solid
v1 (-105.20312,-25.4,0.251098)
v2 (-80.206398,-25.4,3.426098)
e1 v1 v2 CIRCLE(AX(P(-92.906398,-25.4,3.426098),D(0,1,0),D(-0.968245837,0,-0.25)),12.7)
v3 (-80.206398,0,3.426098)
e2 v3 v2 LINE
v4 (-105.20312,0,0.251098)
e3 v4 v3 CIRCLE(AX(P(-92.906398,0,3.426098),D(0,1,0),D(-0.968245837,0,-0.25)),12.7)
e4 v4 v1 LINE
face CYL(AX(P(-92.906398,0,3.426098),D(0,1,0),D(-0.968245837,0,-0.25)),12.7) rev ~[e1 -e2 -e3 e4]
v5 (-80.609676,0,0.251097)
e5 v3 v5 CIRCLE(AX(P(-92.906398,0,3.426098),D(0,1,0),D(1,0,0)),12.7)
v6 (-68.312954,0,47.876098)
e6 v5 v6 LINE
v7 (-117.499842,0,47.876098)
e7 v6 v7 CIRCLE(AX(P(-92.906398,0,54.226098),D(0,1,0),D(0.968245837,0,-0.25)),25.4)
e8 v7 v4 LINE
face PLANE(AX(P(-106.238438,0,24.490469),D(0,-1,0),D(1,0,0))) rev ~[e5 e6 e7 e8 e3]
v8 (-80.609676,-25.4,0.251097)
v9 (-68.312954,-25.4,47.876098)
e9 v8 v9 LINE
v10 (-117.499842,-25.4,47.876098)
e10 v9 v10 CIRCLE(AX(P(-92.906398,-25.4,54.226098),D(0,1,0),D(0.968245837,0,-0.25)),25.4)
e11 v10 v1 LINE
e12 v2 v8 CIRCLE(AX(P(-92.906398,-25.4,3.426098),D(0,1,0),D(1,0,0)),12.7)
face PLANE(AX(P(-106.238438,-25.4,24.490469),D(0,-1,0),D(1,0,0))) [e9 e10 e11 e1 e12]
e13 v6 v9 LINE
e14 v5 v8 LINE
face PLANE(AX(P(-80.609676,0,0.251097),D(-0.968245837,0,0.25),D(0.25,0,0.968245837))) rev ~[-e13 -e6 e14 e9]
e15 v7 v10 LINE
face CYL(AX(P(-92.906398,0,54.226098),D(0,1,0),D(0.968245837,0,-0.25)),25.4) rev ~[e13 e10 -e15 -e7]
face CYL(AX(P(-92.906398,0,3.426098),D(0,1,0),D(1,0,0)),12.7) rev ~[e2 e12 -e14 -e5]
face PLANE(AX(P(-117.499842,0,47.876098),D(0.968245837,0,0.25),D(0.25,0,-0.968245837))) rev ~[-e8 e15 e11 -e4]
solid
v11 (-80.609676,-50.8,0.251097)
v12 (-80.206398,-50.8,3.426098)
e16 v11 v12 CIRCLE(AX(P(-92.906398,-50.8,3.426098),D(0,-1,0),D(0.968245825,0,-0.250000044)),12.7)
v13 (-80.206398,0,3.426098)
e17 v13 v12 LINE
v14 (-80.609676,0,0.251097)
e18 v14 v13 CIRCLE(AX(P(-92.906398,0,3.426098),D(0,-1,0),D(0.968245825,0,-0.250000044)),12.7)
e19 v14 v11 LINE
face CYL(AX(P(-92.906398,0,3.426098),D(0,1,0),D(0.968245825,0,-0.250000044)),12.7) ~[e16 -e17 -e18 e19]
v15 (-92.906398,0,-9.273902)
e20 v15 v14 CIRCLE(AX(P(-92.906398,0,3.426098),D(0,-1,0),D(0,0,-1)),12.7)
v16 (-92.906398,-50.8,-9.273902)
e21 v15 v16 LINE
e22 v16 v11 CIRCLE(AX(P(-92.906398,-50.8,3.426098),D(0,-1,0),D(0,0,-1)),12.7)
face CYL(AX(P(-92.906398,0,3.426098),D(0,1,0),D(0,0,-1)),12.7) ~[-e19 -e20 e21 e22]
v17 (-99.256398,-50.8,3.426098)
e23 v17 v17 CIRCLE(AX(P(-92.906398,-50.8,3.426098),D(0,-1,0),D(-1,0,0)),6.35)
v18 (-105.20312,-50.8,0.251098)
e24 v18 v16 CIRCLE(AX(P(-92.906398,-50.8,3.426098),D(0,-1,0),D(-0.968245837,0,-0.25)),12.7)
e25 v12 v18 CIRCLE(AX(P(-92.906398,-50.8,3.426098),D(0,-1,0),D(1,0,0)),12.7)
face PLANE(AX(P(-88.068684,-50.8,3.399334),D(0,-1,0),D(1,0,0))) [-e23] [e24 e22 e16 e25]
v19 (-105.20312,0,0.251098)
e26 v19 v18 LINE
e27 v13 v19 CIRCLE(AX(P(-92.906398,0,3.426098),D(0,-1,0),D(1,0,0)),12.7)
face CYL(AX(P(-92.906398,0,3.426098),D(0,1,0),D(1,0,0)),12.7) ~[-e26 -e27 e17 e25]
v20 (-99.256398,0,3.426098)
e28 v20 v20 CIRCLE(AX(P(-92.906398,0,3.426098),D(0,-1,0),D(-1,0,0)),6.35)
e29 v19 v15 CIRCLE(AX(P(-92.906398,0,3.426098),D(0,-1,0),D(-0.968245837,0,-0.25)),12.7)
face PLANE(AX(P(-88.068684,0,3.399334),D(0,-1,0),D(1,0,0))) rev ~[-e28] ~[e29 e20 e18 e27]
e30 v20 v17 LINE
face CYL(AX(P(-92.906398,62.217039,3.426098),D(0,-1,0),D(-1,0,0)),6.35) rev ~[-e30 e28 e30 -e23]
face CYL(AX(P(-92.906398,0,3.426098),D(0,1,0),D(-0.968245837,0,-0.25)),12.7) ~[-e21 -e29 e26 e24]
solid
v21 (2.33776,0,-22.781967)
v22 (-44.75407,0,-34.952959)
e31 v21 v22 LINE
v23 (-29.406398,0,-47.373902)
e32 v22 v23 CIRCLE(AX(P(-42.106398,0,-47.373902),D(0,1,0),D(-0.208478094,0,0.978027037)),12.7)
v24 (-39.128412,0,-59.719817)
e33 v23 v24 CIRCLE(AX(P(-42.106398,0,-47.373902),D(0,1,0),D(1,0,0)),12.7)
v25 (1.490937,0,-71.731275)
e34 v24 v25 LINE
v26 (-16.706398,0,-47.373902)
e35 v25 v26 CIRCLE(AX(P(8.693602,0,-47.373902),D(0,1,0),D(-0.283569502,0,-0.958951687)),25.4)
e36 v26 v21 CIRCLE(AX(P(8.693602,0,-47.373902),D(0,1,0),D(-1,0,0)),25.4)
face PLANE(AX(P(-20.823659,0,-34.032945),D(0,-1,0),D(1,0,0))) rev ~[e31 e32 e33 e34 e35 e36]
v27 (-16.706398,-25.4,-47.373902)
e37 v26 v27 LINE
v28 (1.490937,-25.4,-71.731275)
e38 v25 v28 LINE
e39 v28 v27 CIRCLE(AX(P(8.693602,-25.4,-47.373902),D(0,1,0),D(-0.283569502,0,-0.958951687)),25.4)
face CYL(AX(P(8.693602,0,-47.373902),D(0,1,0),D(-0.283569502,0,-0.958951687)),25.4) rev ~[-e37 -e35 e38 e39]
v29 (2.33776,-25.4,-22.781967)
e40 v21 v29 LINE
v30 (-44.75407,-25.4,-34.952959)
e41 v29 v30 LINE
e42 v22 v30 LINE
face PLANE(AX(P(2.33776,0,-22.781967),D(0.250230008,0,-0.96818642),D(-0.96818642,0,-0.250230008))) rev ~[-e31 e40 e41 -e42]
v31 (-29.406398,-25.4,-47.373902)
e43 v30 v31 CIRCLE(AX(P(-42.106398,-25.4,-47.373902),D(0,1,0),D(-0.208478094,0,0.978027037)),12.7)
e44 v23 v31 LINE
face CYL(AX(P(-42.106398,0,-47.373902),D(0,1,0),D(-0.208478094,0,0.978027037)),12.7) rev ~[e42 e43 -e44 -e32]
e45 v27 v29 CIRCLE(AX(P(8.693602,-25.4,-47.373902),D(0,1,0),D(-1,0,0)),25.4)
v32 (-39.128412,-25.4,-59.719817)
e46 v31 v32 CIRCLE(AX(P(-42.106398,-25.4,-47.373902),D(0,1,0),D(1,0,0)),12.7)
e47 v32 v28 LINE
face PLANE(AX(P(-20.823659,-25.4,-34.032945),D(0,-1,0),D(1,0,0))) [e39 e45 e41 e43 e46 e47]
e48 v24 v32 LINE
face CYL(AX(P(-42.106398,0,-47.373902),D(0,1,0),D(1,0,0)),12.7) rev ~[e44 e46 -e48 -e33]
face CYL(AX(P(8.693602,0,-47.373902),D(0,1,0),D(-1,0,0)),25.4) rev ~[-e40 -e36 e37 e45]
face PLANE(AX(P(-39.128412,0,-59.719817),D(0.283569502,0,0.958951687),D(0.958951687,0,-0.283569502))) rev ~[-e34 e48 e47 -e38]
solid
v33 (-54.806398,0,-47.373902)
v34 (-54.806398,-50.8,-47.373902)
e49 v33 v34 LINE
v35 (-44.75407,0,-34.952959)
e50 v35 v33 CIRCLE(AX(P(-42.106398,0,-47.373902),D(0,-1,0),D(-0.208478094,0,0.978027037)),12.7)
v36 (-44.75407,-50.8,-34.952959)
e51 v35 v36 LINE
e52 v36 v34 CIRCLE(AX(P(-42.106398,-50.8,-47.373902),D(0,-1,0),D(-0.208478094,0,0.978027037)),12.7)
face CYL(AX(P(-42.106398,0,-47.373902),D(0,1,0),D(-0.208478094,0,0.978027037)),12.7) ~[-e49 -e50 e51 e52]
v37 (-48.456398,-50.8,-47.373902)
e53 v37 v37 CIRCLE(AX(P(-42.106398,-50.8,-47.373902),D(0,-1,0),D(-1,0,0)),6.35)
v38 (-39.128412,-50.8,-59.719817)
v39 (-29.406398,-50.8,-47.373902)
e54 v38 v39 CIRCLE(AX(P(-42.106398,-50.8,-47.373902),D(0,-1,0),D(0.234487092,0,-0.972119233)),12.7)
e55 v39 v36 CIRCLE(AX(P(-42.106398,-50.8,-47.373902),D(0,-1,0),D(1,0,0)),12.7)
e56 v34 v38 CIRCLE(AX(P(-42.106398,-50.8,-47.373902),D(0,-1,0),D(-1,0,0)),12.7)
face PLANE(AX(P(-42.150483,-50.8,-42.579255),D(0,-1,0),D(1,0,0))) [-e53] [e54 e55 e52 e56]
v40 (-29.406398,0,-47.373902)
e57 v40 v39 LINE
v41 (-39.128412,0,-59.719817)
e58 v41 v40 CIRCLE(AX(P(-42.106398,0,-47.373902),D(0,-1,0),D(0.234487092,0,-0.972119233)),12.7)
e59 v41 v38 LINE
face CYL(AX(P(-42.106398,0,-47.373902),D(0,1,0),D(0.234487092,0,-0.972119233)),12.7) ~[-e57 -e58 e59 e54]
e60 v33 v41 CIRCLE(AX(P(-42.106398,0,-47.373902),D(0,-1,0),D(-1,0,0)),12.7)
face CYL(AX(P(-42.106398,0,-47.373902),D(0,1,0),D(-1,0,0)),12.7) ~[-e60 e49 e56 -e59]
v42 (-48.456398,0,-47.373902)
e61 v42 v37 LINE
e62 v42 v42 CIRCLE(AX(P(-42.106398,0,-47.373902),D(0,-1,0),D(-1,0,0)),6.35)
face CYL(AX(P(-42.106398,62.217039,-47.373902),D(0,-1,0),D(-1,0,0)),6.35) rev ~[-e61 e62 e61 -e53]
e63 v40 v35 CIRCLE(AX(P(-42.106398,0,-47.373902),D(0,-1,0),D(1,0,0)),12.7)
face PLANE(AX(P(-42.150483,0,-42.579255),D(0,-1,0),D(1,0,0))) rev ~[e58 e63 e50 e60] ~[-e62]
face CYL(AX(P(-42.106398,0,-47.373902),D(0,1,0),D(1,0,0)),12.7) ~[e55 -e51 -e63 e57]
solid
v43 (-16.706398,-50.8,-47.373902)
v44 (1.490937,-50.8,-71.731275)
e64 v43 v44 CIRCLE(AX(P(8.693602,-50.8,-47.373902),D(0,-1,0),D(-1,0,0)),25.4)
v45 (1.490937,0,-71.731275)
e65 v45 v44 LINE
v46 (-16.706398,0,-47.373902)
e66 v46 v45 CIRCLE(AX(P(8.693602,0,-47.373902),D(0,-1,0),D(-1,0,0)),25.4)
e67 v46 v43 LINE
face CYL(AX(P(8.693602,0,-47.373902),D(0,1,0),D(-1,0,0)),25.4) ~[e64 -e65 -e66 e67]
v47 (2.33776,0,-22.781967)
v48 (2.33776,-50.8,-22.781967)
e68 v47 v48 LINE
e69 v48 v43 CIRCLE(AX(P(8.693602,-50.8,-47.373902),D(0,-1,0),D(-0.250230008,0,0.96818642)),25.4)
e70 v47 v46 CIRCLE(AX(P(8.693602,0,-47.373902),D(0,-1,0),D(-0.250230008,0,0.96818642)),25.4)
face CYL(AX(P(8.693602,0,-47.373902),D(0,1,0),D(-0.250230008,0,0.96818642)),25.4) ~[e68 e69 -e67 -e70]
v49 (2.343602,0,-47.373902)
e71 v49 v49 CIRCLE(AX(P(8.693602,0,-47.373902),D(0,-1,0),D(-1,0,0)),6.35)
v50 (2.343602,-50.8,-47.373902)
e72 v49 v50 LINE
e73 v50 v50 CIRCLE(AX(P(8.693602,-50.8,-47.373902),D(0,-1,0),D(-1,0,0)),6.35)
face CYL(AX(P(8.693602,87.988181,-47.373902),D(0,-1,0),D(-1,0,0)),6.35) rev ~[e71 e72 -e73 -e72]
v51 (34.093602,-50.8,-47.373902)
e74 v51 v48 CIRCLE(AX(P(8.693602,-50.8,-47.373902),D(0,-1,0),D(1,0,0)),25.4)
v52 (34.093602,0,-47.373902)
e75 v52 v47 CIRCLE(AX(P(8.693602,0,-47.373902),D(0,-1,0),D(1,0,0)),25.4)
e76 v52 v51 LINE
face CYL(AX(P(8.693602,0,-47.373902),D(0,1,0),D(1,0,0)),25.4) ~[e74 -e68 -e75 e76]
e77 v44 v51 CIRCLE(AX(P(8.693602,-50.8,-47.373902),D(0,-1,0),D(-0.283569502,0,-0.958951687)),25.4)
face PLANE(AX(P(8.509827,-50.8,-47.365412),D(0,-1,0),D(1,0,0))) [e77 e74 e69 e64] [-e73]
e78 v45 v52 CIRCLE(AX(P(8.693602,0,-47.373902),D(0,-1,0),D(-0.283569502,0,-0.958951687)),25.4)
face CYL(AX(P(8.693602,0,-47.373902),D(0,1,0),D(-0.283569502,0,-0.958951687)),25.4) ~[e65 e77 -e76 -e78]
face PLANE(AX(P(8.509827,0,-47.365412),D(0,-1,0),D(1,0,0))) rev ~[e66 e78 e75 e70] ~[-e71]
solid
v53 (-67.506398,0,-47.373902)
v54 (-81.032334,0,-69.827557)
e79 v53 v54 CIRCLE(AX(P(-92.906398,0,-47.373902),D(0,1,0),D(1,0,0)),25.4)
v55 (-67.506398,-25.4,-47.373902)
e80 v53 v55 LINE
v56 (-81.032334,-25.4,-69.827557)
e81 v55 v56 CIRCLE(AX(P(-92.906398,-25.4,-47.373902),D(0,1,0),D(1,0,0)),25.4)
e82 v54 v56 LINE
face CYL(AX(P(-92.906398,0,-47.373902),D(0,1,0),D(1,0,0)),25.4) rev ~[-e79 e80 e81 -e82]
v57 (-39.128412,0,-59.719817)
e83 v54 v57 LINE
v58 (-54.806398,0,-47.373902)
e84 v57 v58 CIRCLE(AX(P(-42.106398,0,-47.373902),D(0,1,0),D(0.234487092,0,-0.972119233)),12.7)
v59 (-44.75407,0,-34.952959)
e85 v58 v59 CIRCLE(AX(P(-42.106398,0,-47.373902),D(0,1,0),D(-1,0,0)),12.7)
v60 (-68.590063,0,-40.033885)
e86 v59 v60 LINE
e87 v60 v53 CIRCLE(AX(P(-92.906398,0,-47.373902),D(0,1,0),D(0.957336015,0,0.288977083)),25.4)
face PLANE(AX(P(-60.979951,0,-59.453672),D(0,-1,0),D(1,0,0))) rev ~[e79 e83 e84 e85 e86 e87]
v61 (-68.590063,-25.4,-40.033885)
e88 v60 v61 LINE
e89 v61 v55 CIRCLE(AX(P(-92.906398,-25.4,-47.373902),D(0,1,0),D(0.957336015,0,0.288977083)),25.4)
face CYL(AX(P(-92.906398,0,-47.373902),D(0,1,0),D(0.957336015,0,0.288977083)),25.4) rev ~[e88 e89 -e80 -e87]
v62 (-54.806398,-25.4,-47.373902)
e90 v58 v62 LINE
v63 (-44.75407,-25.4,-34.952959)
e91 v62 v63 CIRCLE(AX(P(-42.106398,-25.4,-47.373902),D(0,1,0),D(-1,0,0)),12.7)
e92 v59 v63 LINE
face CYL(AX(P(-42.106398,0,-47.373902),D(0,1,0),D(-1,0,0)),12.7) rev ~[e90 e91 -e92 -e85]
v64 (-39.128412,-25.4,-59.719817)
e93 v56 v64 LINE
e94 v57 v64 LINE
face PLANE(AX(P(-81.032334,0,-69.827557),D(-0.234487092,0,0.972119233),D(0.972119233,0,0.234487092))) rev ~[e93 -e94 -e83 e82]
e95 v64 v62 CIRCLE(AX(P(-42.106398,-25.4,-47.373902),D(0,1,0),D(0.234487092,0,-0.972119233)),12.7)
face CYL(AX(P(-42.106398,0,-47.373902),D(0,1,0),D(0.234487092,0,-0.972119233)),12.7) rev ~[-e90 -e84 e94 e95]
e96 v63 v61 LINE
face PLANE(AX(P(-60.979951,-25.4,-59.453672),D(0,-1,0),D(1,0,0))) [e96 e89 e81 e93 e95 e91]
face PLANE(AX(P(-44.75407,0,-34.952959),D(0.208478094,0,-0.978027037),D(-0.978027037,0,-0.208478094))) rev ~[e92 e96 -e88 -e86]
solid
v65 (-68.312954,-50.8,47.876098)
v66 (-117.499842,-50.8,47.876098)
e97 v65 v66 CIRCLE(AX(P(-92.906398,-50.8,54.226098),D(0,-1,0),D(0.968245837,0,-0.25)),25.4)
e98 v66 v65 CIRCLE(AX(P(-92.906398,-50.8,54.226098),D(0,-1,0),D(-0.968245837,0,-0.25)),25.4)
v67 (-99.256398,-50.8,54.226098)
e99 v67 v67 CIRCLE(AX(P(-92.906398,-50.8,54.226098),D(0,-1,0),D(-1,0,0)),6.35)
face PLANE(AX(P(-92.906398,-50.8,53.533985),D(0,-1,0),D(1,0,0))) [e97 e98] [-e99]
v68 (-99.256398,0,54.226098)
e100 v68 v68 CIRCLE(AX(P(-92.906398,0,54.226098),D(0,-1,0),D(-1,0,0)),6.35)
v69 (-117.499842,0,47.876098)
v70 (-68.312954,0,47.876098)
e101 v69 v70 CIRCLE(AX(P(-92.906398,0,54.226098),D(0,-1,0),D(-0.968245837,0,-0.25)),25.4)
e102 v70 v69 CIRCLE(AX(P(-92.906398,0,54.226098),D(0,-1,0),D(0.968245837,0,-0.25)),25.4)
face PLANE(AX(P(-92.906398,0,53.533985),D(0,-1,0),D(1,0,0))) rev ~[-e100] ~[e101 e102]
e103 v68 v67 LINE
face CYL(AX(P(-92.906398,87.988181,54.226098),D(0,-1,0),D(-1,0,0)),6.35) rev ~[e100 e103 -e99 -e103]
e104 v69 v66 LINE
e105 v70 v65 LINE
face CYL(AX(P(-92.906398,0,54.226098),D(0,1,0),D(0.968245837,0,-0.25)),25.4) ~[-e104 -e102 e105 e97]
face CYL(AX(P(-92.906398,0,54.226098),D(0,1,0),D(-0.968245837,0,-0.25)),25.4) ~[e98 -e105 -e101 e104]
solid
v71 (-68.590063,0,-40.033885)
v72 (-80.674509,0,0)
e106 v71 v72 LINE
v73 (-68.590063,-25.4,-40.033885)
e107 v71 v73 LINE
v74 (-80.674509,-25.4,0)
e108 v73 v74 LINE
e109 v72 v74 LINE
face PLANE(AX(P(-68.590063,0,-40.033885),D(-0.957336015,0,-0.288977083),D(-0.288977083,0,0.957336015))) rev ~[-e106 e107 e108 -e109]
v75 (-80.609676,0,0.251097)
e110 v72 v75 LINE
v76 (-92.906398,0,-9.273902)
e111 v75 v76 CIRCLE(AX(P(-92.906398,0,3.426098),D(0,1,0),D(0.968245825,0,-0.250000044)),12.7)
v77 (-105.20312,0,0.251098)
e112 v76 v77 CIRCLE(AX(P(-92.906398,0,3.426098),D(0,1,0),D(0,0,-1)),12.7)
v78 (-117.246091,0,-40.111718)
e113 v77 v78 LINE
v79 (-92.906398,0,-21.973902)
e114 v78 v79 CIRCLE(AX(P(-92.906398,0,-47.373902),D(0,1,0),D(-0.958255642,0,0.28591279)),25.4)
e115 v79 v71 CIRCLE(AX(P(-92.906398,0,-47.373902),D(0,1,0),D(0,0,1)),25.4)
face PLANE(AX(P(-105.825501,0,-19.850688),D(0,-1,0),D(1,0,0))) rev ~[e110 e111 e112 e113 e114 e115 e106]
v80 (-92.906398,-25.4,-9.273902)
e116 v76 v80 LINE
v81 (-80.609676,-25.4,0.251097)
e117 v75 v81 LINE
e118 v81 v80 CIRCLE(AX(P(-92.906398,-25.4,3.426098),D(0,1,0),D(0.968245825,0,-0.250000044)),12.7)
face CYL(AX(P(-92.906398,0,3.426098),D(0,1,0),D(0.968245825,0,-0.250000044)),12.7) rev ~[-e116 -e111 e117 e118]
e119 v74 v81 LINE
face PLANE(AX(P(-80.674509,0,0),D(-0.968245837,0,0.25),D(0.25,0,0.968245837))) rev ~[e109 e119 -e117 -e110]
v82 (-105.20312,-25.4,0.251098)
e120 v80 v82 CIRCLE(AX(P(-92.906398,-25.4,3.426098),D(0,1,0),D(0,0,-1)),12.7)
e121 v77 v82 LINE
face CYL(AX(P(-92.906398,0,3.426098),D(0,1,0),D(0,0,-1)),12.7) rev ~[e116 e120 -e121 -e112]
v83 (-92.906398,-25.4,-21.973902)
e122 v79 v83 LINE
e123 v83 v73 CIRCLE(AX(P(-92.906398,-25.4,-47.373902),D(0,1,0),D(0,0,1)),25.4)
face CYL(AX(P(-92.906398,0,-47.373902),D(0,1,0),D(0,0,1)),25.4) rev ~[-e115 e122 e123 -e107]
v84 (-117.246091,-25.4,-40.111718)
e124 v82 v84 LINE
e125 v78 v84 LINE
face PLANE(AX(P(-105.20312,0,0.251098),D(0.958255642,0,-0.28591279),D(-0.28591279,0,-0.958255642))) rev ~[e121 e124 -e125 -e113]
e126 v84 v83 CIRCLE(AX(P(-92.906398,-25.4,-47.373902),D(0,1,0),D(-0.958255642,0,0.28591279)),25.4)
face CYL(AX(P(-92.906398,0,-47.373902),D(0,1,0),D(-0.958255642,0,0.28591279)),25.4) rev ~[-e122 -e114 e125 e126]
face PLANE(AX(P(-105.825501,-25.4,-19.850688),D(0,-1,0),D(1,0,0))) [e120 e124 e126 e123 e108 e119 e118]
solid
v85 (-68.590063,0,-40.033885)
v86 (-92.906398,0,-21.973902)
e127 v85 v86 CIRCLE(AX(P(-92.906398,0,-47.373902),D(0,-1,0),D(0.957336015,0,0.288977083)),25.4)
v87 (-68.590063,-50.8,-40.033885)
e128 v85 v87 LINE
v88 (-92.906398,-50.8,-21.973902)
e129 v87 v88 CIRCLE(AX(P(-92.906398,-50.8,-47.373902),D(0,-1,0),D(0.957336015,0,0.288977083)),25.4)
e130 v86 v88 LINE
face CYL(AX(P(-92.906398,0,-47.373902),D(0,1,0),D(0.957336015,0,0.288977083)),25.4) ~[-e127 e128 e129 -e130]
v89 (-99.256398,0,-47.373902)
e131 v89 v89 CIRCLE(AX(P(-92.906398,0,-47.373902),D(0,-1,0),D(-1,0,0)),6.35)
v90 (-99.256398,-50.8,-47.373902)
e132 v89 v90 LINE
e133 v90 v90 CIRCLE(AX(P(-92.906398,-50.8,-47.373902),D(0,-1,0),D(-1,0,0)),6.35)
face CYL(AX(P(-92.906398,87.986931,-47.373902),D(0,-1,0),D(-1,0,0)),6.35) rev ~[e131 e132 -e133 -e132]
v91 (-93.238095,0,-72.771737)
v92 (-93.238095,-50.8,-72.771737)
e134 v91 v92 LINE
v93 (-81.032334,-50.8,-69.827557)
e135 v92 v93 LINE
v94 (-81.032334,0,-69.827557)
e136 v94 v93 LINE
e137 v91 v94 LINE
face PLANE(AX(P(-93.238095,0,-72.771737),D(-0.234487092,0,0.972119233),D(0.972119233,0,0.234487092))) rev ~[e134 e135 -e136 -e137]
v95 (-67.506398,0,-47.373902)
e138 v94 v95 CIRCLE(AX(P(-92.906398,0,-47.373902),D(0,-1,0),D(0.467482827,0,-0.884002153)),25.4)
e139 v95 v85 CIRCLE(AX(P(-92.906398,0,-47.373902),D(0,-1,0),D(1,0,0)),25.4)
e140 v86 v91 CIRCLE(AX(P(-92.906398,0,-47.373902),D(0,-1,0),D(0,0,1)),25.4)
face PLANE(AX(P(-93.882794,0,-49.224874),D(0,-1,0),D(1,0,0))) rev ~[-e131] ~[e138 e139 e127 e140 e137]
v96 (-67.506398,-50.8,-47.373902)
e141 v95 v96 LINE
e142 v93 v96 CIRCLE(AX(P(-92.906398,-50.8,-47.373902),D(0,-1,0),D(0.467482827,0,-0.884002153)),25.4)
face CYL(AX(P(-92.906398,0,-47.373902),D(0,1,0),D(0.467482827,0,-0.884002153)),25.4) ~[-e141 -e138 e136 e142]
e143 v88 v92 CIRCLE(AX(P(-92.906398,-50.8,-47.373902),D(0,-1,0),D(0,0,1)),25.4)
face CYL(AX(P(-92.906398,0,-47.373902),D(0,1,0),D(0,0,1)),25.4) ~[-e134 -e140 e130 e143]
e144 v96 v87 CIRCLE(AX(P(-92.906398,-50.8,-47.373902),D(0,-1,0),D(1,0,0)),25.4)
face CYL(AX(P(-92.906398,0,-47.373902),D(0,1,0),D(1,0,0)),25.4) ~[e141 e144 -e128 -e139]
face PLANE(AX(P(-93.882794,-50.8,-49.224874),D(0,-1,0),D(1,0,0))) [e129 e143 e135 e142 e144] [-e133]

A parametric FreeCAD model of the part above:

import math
import FreeCAD as App
import Part
import Sketcher
from FreeCAD import Vector
Q = App.Units.Quantity

doc = App.newDocument("Part")
body = doc.addObject("PartDesign::Body", "Body")

sketch1 = body.newObject("Sketcher::SketchObject", "Sketch")
sketch1.AttachmentSupport = (doc.getObject("XZ_Plane"), [""])
sketch1.MapMode = "FlatFace"
sketch1.addGeometry([
    Part.ArcOfCircle(Part.Circle(Vector(-92.906398, 54.226098, 0), Vector(0, 0, 1), 25.4), math.radians(-14.477512), math.radians(194.477512)),
    Part.ArcOfCircle(Part.Circle(Vector(-92.906398, 54.226098, 0), Vector(0, 0, 1), 25.4), math.radians(-165.522488), math.radians(-14.477512)),
], False)
sketch1.addConstraint([
    Sketcher.Constraint("Tangent", 0, 1, 1, 2),
    Sketcher.Constraint("Coincident", 1, 1, 0, 2),
    Sketcher.Constraint("Horizontal", 0, 1, 1, 1),
    Sketcher.Constraint("Radius", 0, Q("1 in")),
    Sketcher.Constraint("DistanceY", 0, 1, 1, 3, Q("0.25 in")),
    Sketcher.Constraint("DistanceX", 0, 3, -1, 1, Q("92.906398 mm")),
    Sketcher.Constraint("DistanceY", -1, 1, 0, 3, Q("54.226098 mm")),
])
pad1 = body.newObject("PartDesign::Pad", "Pad")
pad1.Profile = sketch1
pad1.Length = Q("2 in")

sketch2 = body.newObject("Sketcher::SketchObject", "Sketch001")
sketch2.AttachmentSupport = (doc.getObject("XZ_Plane"), [""])
sketch2.MapMode = "FlatFace"
sketch2.addGeometry([
    Part.Circle(Vector(-92.906398, -47.373902, 0), Vector(0, 0, 1), 6.35),
    Part.Circle(Vector(-92.906398, 3.426098, 0), Vector(0, 0, 1), 6.35),
    Part.Circle(Vector(-92.906398, 54.226098, 0), Vector(0, 0, 1), 6.35),
    Part.Circle(Vector(-42.106398, -47.373902, 0), Vector(0, 0, 1), 6.35),
    Part.Circle(Vector(8.693602, -47.373902, 0), Vector(0, 0, 1), 6.35),
], False)
sketch2.addConstraint([
    Sketcher.Constraint("Equal", 0, 1),
    Sketcher.Constraint("Equal", 1, 2),
    Sketcher.Constraint("Equal", 2, 3),
    Sketcher.Constraint("Equal", 3, 4),
    Sketcher.Constraint("Horizontal", 0, 3, 3, 3),
    Sketcher.Constraint("Horizontal", 3, 3, 4, 3),
    Sketcher.Constraint("Vertical", 0, 3, 1, 3),
    Sketcher.Constraint("Vertical", 1, 3, 2, 3),
    Sketcher.Constraint("Diameter", 0, Q("0.5 in")),
    Sketcher.Constraint("DistanceY", 0, 3, 1, 3, Q("2 in")),
    Sketcher.Constraint("DistanceY", 1, 3, 2, 3, Q("2 in")),
    Sketcher.Constraint("DistanceX", 0, 3, 3, 3, Q("2 in")),
    Sketcher.Constraint("DistanceX", 3, 3, 4, 3, Q("2 in")),
    Sketcher.Constraint("DistanceX", 0, 3, -1, 1, Q("92.906398 mm")),
    Sketcher.Constraint("DistanceY", 0, 3, -1, 1, Q("47.373902 mm")),
])
doc.recompute()
hole = body.newObject("PartDesign::Hole", "Hole")
hole.Profile = sketch2
hole.ThreadType = "None"
hole.Diameter = Q("0.5 in")
hole.DepthType = "ThroughAll"
hole.Reversed = True
body2 = doc.addObject("PartDesign::Body", "Body001")

sketch3 = body2.newObject("Sketcher::SketchObject", "Sketch002")
sketch3.AttachmentSupport = (doc.getObject("XZ_Plane001"), [""])
sketch3.MapMode = "FlatFace"
sketch3.addGeometry([
    Part.ArcOfCircle(Part.Circle(Vector(-92.906398, 3.426098, 0), Vector(0, 0, 1), 12.7), math.radians(-90), math.radians(-14.477515)),
    Part.ArcOfCircle(Part.Circle(Vector(-92.906398, 3.426098, 0), Vector(0, 0, 1), 12.7), math.radians(-14.477515), math.radians(0)),
    Part.ArcOfCircle(Part.Circle(Vector(-92.906398, 3.426098, 0), Vector(0, 0, 1), 12.7), math.radians(0), math.radians(194.477512)),
    Part.ArcOfCircle(Part.Circle(Vector(-92.906398, 3.426098, 0), Vector(0, 0, 1), 12.7), math.radians(-165.522488), math.radians(-90)),
], False)
sketch3.addConstraint([
    Sketcher.Constraint("Tangent", 0, 2, 1, 1),
    Sketcher.Constraint("Tangent", 1, 2, 2, 1),
    Sketcher.Constraint("Tangent", 2, 2, 3, 1),
    Sketcher.Constraint("Tangent", 3, 2, 0, 1),
    Sketcher.Constraint("Equal", 0, 1),
    Sketcher.Constraint("Horizontal", 3, 3, 1, 2),
    Sketcher.Constraint("Horizontal", 0, 2, 2, 2),
    Sketcher.Constraint("Vertical", 2, 3, 3, 2),
    Sketcher.Constraint("Radius", 0, Q("0.5 in")),
    Sketcher.Constraint("DistanceY", 0, 2, 0, 3, Q("0.125 in")),
    Sketcher.Constraint("DistanceX", 2, 2, -1, 1, Q("105.20312 mm")),
    Sketcher.Constraint("DistanceY", -1, 1, 0, 3, Q("3.426098 mm")),
])
pad2 = body2.newObject("PartDesign::Pad", "Pad001")
pad2.Profile = sketch3
pad2.Length = Q("2 in")

sketch4 = body2.newObject("Sketcher::SketchObject", "Sketch003")
sketch4.AttachmentSupport = (doc.getObject("XZ_Plane001"), [""])
sketch4.MapMode = "FlatFace"
sketch4.addGeometry([
    Part.Circle(Vector(-92.906398, -47.373902, 0), Vector(0, 0, 1), 6.35),
    Part.Circle(Vector(-92.906398, 3.426098, 0), Vector(0, 0, 1), 6.35),
    Part.Circle(Vector(-92.906398, 54.226098, 0), Vector(0, 0, 1), 6.35),
    Part.Circle(Vector(-42.106398, -47.373902, 0), Vector(0, 0, 1), 6.35),
    Part.Circle(Vector(8.693602, -47.373902, 0), Vector(0, 0, 1), 6.35),
], False)
sketch4.addConstraint([
    Sketcher.Constraint("Equal", 0, 1),
    Sketcher.Constraint("Equal", 1, 2),
    Sketcher.Constraint("Equal", 2, 3),
    Sketcher.Constraint("Equal", 3, 4),
    Sketcher.Constraint("Horizontal", 0, 3, 3, 3),
    Sketcher.Constraint("Horizontal", 3, 3, 4, 3),
    Sketcher.Constraint("Vertical", 0, 3, 1, 3),
    Sketcher.Constraint("Vertical", 1, 3, 2, 3),
    Sketcher.Constraint("Diameter", 0, Q("0.5 in")),
    Sketcher.Constraint("DistanceY", 0, 3, 1, 3, Q("2 in")),
    Sketcher.Constraint("DistanceY", 1, 3, 2, 3, Q("2 in")),
    Sketcher.Constraint("DistanceX", 0, 3, 3, 3, Q("2 in")),
    Sketcher.Constraint("DistanceX", 3, 3, 4, 3, Q("2 in")),
    Sketcher.Constraint("DistanceX", 0, 3, -1, 1, Q("92.906398 mm")),
    Sketcher.Constraint("DistanceY", 0, 3, -1, 1, Q("47.373902 mm")),
])
doc.recompute()
hole2 = body2.newObject("PartDesign::Hole", "Hole001")
hole2.Profile = sketch4
hole2.ThreadType = "None"
hole2.Diameter = Q("0.5 in")
hole2.DepthType = "ThroughAll"
hole2.Reversed = True
body3 = doc.addObject("PartDesign::Body", "Body002")

sketch5 = body3.newObject("Sketcher::SketchObject", "Sketch004")
sketch5.AttachmentSupport = (doc.getObject("XZ_Plane002"), [""])
sketch5.MapMode = "FlatFace"
sketch5.addGeometry([
    Part.ArcOfCircle(Part.Circle(Vector(-92.906398, -47.373902, 0), Vector(0, 0, 1), 25.4), math.radians(-62.128975), math.radians(0)),
    Part.ArcOfCircle(Part.Circle(Vector(-92.906398, -47.373902, 0), Vector(0, 0, 1), 25.4), math.radians(0), math.radians(16.796725)),
    Part.ArcOfCircle(Part.Circle(Vector(-92.906398, -47.373902, 0), Vector(0, 0, 1), 25.4), math.radians(16.796725), math.radians(90)),
    Part.ArcOfCircle(Part.Circle(Vector(-92.906398, -47.373902, 0), Vector(0, 0, 1), 25.4), math.radians(90), math.radians(269.251756)),
    Part.LineSegment(Vector(-93.238095, -72.771737, 0), Vector(-81.032334, -69.827557, 0)),
], False)
sketch5.addConstraint([
    Sketcher.Constraint("Tangent", 0, 2, 1, 1),
    Sketcher.Constraint("Tangent", 1, 2, 2, 1),
    Sketcher.Constraint("Tangent", 2, 2, 3, 1),
    Sketcher.Constraint("Coincident", 3, 2, 4, 1),
    Sketcher.Constraint("Coincident", 4, 2, 0, 1),
    Sketcher.Constraint("Coincident", 2, 3, 0, 3),
    Sketcher.Constraint("Equal", 2, 3),
    Sketcher.Constraint("Horizontal", 3, 3, 0, 2),
    Sketcher.Constraint("Vertical", 3, 3, 2, 2),
    Sketcher.Constraint("Radius", 0, Q("1 in")),
    Sketcher.Constraint("DistanceX", 3, 2, 4, 2, Q("12.205761 mm")),
    Sketcher.Constraint("DistanceY", 3, 2, 4, 2, Q("2.944179 mm")),
    Sketcher.Constraint("DistanceX", 0, 3, -1, 1, Q("92.906398 mm")),
    Sketcher.Constraint("DistanceY", 0, 3, -1, 1, Q("47.373902 mm")),
    Sketcher.Constraint("DistanceX", 1, 2, -1, 1, Q("68.590063 mm")),
])
pad3 = body3.newObject("PartDesign::Pad", "Pad002")
pad3.Profile = sketch5
pad3.Length = Q("2 in")

sketch6 = body3.newObject("Sketcher::SketchObject", "Sketch005")
sketch6.AttachmentSupport = (doc.getObject("XZ_Plane002"), [""])
sketch6.MapMode = "FlatFace"
sketch6.addGeometry([
    Part.Circle(Vector(-92.906398, -47.373902, 0), Vector(0, 0, 1), 6.35),
    Part.Circle(Vector(-92.906398, 3.426098, 0), Vector(0, 0, 1), 6.35),
    Part.Circle(Vector(-92.906398, 54.226098, 0), Vector(0, 0, 1), 6.35),
    Part.Circle(Vector(-42.106398, -47.373902, 0), Vector(0, 0, 1), 6.35),
    Part.Circle(Vector(8.693602, -47.373902, 0), Vector(0, 0, 1), 6.35),
], False)
sketch6.addConstraint([
    Sketcher.Constraint("Equal", 0, 1),
    Sketcher.Constraint("Equal", 1, 2),
    Sketcher.Constraint("Equal", 2, 3),
    Sketcher.Constraint("Equal", 3, 4),
    Sketcher.Constraint("Horizontal", 0, 3, 3, 3),
    Sketcher.Constraint("Horizontal", 3, 3, 4, 3),
    Sketcher.Constraint("Vertical", 0, 3, 1, 3),
    Sketcher.Constraint("Vertical", 1, 3, 2, 3),
    Sketcher.Constraint("Diameter", 0, Q("0.5 in")),
    Sketcher.Constraint("DistanceY", 0, 3, 1, 3, Q("2 in")),
    Sketcher.Constraint("DistanceY", 1, 3, 2, 3, Q("2 in")),
    Sketcher.Constraint("DistanceX", 0, 3, 3, 3, Q("2 in")),
    Sketcher.Constraint("DistanceX", 3, 3, 4, 3, Q("2 in")),
    Sketcher.Constraint("DistanceX", 0, 3, -1, 1, Q("92.906398 mm")),
    Sketcher.Constraint("DistanceY", 0, 3, -1, 1, Q("47.373902 mm")),
])
doc.recompute()
hole3 = body3.newObject("PartDesign::Hole", "Hole002")
hole3.Profile = sketch6
hole3.ThreadType = "None"
hole3.Diameter = Q("0.5 in")
hole3.DepthType = "ThroughAll"
hole3.Reversed = True
body4 = doc.addObject("PartDesign::Body", "Body003")

sketch7 = body4.newObject("Sketcher::SketchObject", "Sketch006")
sketch7.AttachmentSupport = (doc.getObject("XZ_Plane003"), [""])
sketch7.MapMode = "FlatFace"
sketch7.addGeometry([
    Part.ArcOfCircle(Part.Circle(Vector(8.693602, -47.373902, 0), Vector(0, 0, 1), 25.4), math.radians(104.491123), math.radians(180)),
    Part.ArcOfCircle(Part.Circle(Vector(8.693602, -47.373902, 0), Vector(0, 0, 1), 25.4), math.radians(180), math.radians(253.52664)),
    Part.ArcOfCircle(Part.Circle(Vector(8.693602, -47.373902, 0), Vector(0, 0, 1), 25.4), math.radians(-106.47336), math.radians(0)),
    Part.ArcOfCircle(Part.Circle(Vector(8.693602, -47.373902, 0), Vector(0, 0, 1), 25.4), math.radians(0), math.radians(104.491123)),
], False)
sketch7.addConstraint([
    Sketcher.Constraint("Tangent", 0, 2, 1, 1),
    Sketcher.Constraint("Tangent", 1, 2, 2, 1),
    Sketcher.Constraint("Tangent", 2, 2, 3, 1),
    Sketcher.Constraint("Tangent", 3, 2, 0, 1),
    Sketcher.Constraint("Equal", 0, 1),
    Sketcher.Constraint("Horizontal", 3, 3, 0, 2),
    Sketcher.Constraint("Horizontal", 0, 2, 2, 2),
    Sketcher.Constraint("Radius", 0, Q("1 in")),
    Sketcher.Constraint("DistanceX", -1, 1, 3, 2, Q("2.33776 mm")),
    Sketcher.Constraint("DistanceX", -1, 1, 0, 3, Q("8.693602 mm")),
    Sketcher.Constraint("DistanceY", 0, 3, -1, 1, Q("47.373902 mm")),
    Sketcher.Constraint("DistanceX", -1, 1, 1, 2, Q("1.490937 mm")),
])
pad4 = body4.newObject("PartDesign::Pad", "Pad003")
pad4.Profile = sketch7
pad4.Length = Q("2 in")

sketch8 = body4.newObject("Sketcher::SketchObject", "Sketch007")
sketch8.AttachmentSupport = (doc.getObject("XZ_Plane003"), [""])
sketch8.MapMode = "FlatFace"
sketch8.addGeometry([
    Part.Circle(Vector(-92.906398, -47.373902, 0), Vector(0, 0, 1), 6.35),
    Part.Circle(Vector(-92.906398, 3.426098, 0), Vector(0, 0, 1), 6.35),
    Part.Circle(Vector(-92.906398, 54.226098, 0), Vector(0, 0, 1), 6.35),
    Part.Circle(Vector(-42.106398, -47.373902, 0), Vector(0, 0, 1), 6.35),
    Part.Circle(Vector(8.693602, -47.373902, 0), Vector(0, 0, 1), 6.35),
], False)
sketch8.addConstraint([
    Sketcher.Constraint("Equal", 0, 1),
    Sketcher.Constraint("Equal", 1, 2),
    Sketcher.Constraint("Equal", 2, 3),
    Sketcher.Constraint("Equal", 3, 4),
    Sketcher.Constraint("Horizontal", 0, 3, 3, 3),
    Sketcher.Constraint("Horizontal", 3, 3, 4, 3),
    Sketcher.Constraint("Vertical", 0, 3, 1, 3),
    Sketcher.Constraint("Vertical", 1, 3, 2, 3),
    Sketcher.Constraint("Diameter", 0, Q("0.5 in")),
    Sketcher.Constraint("DistanceY", 0, 3, 1, 3, Q("2 in")),
    Sketcher.Constraint("DistanceY", 1, 3, 2, 3, Q("2 in")),
    Sketcher.Constraint("DistanceX", 0, 3, 3, 3, Q("2 in")),
    Sketcher.Constraint("DistanceX", 3, 3, 4, 3, Q("2 in")),
    Sketcher.Constraint("DistanceX", 0, 3, -1, 1, Q("92.906398 mm")),
    Sketcher.Constraint("DistanceY", 0, 3, -1, 1, Q("47.373902 mm")),
])
doc.recompute()
hole4 = body4.newObject("PartDesign::Hole", "Hole003")
hole4.Profile = sketch8
hole4.ThreadType = "None"
hole4.Diameter = Q("0.5 in")
hole4.DepthType = "ThroughAll"
hole4.Reversed = True
body5 = doc.addObject("PartDesign::Body", "Body004")

sketch9 = body5.newObject("Sketcher::SketchObject", "Sketch008")
sketch9.AttachmentSupport = (doc.getObject("XZ_Plane004"), [""])
sketch9.MapMode = "FlatFace"
sketch9.addGeometry([
    Part.ArcOfCircle(Part.Circle(Vector(-42.106398, -47.373902, 0), Vector(0, 0, 1), 12.7), math.radians(0), math.radians(102.03318)),
    Part.ArcOfCircle(Part.Circle(Vector(-42.106398, -47.373902, 0), Vector(0, 0, 1), 12.7), math.radians(102.03318), math.radians(180)),
    Part.ArcOfCircle(Part.Circle(Vector(-42.106398, -47.373902, 0), Vector(0, 0, 1), 12.7), math.radians(180), math.radians(283.561391)),
    Part.ArcOfCircle(Part.Circle(Vector(-42.106398, -47.373902, 0), Vector(0, 0, 1), 12.7), math.radians(-76.438609), math.radians(0)),
], False)
sketch9.addConstraint([
    Sketcher.Constraint("Tangent", 0, 2, 1, 1),
    Sketcher.Constraint("Tangent", 1, 2, 2, 1),
    Sketcher.Constraint("Tangent", 2, 2, 3, 1),
    Sketcher.Constraint("Tangent", 3, 2, 0, 1),
    Sketcher.Constraint("Equal", 0, 1),
    Sketcher.Constraint("Horizontal", 3, 3, 1, 2),
    Sketcher.Constraint("Horizontal", 1, 2, 3, 2),
    Sketcher.Constraint("Radius", 0, Q("0.5 in")),
    Sketcher.Constraint("DistanceX", 0, 2, -1, 1, Q("44.75407 mm")),
    Sketcher.Constraint("DistanceY", 0, 2, -1, 1, Q("34.952959 mm")),
    Sketcher.Constraint("DistanceX", 2, 2, -1, 1, Q("39.128412 mm")),
    Sketcher.Constraint("DistanceX", 0, 2, 0, 3, Q("2.647672 mm")),
])
pad5 = body5.newObject("PartDesign::Pad", "Pad004")
pad5.Profile = sketch9
pad5.Length = Q("2 in")

sketch10 = body5.newObject("Sketcher::SketchObject", "Sketch009")
sketch10.AttachmentSupport = (doc.getObject("XZ_Plane004"), [""])
sketch10.MapMode = "FlatFace"
sketch10.addGeometry([
    Part.Circle(Vector(-92.906398, -47.373902, 0), Vector(0, 0, 1), 6.35),
    Part.Circle(Vector(-92.906398, 3.426098, 0), Vector(0, 0, 1), 6.35),
    Part.Circle(Vector(-92.906398, 54.226098, 0), Vector(0, 0, 1), 6.35),
    Part.Circle(Vector(-42.106398, -47.373902, 0), Vector(0, 0, 1), 6.35),
    Part.Circle(Vector(8.693602, -47.373902, 0), Vector(0, 0, 1), 6.35),
], False)
sketch10.addConstraint([
    Sketcher.Constraint("Equal", 0, 1),
    Sketcher.Constraint("Equal", 1, 2),
    Sketcher.Constraint("Equal", 2, 3),
    Sketcher.Constraint("Equal", 3, 4),
    Sketcher.Constraint("Horizontal", 0, 3, 3, 3),
    Sketcher.Constraint("Horizontal", 3, 3, 4, 3),
    Sketcher.Constraint("Vertical", 0, 3, 1, 3),
    Sketcher.Constraint("Vertical", 1, 3, 2, 3),
    Sketcher.Constraint("Diameter", 0, Q("0.5 in")),
    Sketcher.Constraint("DistanceY", 0, 3, 1, 3, Q("2 in")),
    Sketcher.Constraint("DistanceY", 1, 3, 2, 3, Q("2 in")),
    Sketcher.Constraint("DistanceX", 0, 3, 3, 3, Q("2 in")),
    Sketcher.Constraint("DistanceX", 3, 3, 4, 3, Q("2 in")),
    Sketcher.Constraint("DistanceX", 0, 3, -1, 1, Q("92.906398 mm")),
    Sketcher.Constraint("DistanceY", 0, 3, -1, 1, Q("47.373902 mm")),
])
doc.recompute()
hole5 = body5.newObject("PartDesign::Hole", "Hole004")
hole5.Profile = sketch10
hole5.ThreadType = "None"
hole5.Diameter = Q("0.5 in")
hole5.DepthType = "ThroughAll"
hole5.Reversed = True
body6 = doc.addObject("PartDesign::Body", "Body005")

sketch11 = body6.newObject("Sketcher::SketchObject", "Sketch010")
sketch11.AttachmentSupport = (doc.getObject("XZ_Plane005"), [""])
sketch11.MapMode = "FlatFace"
sketch11.addGeometry([
    Part.LineSegment(Vector(-117.499842, 47.876098, 0), Vector(-105.20312, 0.251098, 0)),
    Part.ArcOfCircle(Part.Circle(Vector(-92.906398, 3.426098, 0), Vector(0, 0, 1), 12.7), math.radians(0), math.radians(194.477512)),
    Part.ArcOfCircle(Part.Circle(Vector(-92.906398, 3.426098, 0), Vector(0, 0, 1), 12.7), math.radians(-14.477515), math.radians(0)),
    Part.LineSegment(Vector(-80.609676, 0.251097, 0), Vector(-68.312954, 47.876098, 0)),
    Part.ArcOfCircle(Part.Circle(Vector(-92.906398, 54.226098, 0), Vector(0, 0, 1), 25.4), math.radians(-165.522488), math.radians(-14.477512)),
], False)
sketch11.addConstraint([
    Sketcher.Constraint("Tangent", 0, 2, 1, 2),
    Sketcher.Constraint("Tangent", 1, 1, 2, 2),
    Sketcher.Constraint("Tangent", 2, 1, 3, 1),
    Sketcher.Constraint("Tangent", 3, 2, 4, 2),
    Sketcher.Constraint("Tangent", 4, 1, 0, 1),
    Sketcher.Constraint("Equal", 1, 2),
    Sketcher.Constraint("Horizontal", 2, 3, 1, 1),
    Sketcher.Constraint("Horizontal", 0, 2, 2, 1),
    Sketcher.Constraint("Radius", 4, Q("1 in")),
    Sketcher.Constraint("Radius", 1, Q("0.5 in")),
    Sketcher.Constraint("DistanceY", 2, 3, 4, 3, Q("2 in")),
    Sketcher.Constraint("DistanceX", 0, 2, -1, 1, Q("105.20312 mm")),
    Sketcher.Constraint("DistanceY", -1, 1, 1, 3, Q("3.426098 mm")),
])
pad6 = body6.newObject("PartDesign::Pad", "Pad005")
pad6.Profile = sketch11
pad6.Length = Q("1 in")
body7 = doc.addObject("PartDesign::Body", "Body006")

sketch12 = body7.newObject("Sketcher::SketchObject", "Sketch011")
sketch12.AttachmentSupport = (doc.getObject("XZ_Plane006"), [""])
sketch12.MapMode = "FlatFace"
sketch12.addGeometry([
    Part.ArcOfCircle(Part.Circle(Vector(-92.906398, -47.373902, 0), Vector(0, 0, 1), 25.4), math.radians(90), math.radians(163.386582)),
    Part.ArcOfCircle(Part.Circle(Vector(-92.906398, -47.373902, 0), Vector(0, 0, 1), 25.4), math.radians(16.796725), math.radians(90)),
    Part.LineSegment(Vector(-68.590063, -40.033885, 0), Vector(-80.674509, 0, 0)),
    Part.LineSegment(Vector(-80.674509, 0, 0), Vector(-80.609676, 0.251097, 0)),
    Part.ArcOfCircle(Part.Circle(Vector(-92.906398, 3.426098, 0), Vector(0, 0, 1), 12.7), math.radians(-90), math.radians(-14.477515)),
    Part.ArcOfCircle(Part.Circle(Vector(-92.906398, 3.426098, 0), Vector(0, 0, 1), 12.7), math.radians(-165.522488), math.radians(-90)),
    Part.LineSegment(Vector(-105.20312, 0.251098, 0), Vector(-117.246091, -40.111718, 0)),
], False)
sketch12.addConstraint([
    Sketcher.Constraint("Tangent", 0, 1, 1, 2),
    Sketcher.Constraint("Tangent", 1, 1, 2, 1),
    Sketcher.Constraint("Coincident", 2, 2, 3, 1),
    Sketcher.Constraint("Tangent", 3, 2, 4, 2),
    Sketcher.Constraint("Tangent", 4, 1, 5, 2),
    Sketcher.Constraint("Coincident", 5, 1, 6, 1),
    Sketcher.Constraint("Tangent", 6, 2, 0, 2),
    Sketcher.Constraint("Equal", 0, 1),
    Sketcher.Constraint("Equal", 4, 5),
    Sketcher.Constraint("PointOnObject", 2, 2, -1),
    Sketcher.Constraint("Horizontal", 3, 2, 5, 1),
    Sketcher.Constraint("Vertical", 1, 3, 4, 3),
    Sketcher.Constraint("Vertical", 5, 3, 0, 1),
    Sketcher.Constraint("Vertical", 0, 1, 4, 1),
    Sketcher.Constraint("Radius", 0, Q("1 in")),
    Sketcher.Constraint("Radius", 4, Q("0.5 in")),
    Sketcher.Constraint("DistanceY", 0, 3, 4, 3, Q("2 in")),
    Sketcher.Constraint("DistanceY", 3, 2, 4, 3, Q("0.125 in")),
    Sketcher.Constraint("Distance", 3, Q("0.259332 mm")),
    Sketcher.Constraint("DistanceX", 2, 2, -1, 1, Q("80.674509 mm")),
])
pad7 = body7.newObject("PartDesign::Pad", "Pad006")
pad7.Profile = sketch12
pad7.Length = Q("1 in")
body8 = doc.addObject("PartDesign::Body", "Body007")

sketch13 = body8.newObject("Sketcher::SketchObject", "Sketch012")
sketch13.AttachmentSupport = (doc.getObject("XZ_Plane007"), [""])
sketch13.MapMode = "FlatFace"
sketch13.addGeometry([
    Part.ArcOfCircle(Part.Circle(Vector(-42.106398, -47.373902, 0), Vector(0, 0, 1), 12.7), math.radians(0), math.radians(102.03318)),
    Part.ArcOfCircle(Part.Circle(Vector(-42.106398, -47.373902, 0), Vector(0, 0, 1), 12.7), math.radians(-76.438609), math.radians(0)),
    Part.LineSegment(Vector(-39.128412, -59.719817, 0), Vector(1.490937, -71.731275, 0)),
    Part.ArcOfCircle(Part.Circle(Vector(8.693602, -47.373902, 0), Vector(0, 0, 1), 25.4), math.radians(180), math.radians(253.52664)),
    Part.ArcOfCircle(Part.Circle(Vector(8.693602, -47.373902, 0), Vector(0, 0, 1), 25.4), math.radians(104.491123), math.radians(180)),
    Part.LineSegment(Vector(2.33776, -22.781967, 0), Vector(-44.75407, -34.952959, 0)),
], False)
sketch13.addConstraint([
    Sketcher.Constraint("Tangent", 0, 1, 1, 2),
    Sketcher.Constraint("Coincident", 1, 1, 2, 1),
    Sketcher.Constraint("Tangent", 2, 2, 3, 2),
    Sketcher.Constraint("Tangent", 3, 1, 4, 2),
    Sketcher.Constraint("Tangent", 4, 1, 5, 1),
    Sketcher.Constraint("Coincident", 5, 2, 0, 2),
    Sketcher.Constraint("Equal", 0, 1),
    Sketcher.Constraint("Equal", 3, 4),
    Sketcher.Constraint("Horizontal", 1, 3, 3, 3),
    Sketcher.Constraint("Horizontal", 4, 3, 0, 1),
    Sketcher.Constraint("Horizontal", 0, 1, 3, 1),
    Sketcher.Constraint("Radius", 3, Q("1 in")),
    Sketcher.Constraint("Radius", 0, Q("0.5 in")),
    Sketcher.Constraint("DistanceX", 0, 3, 3, 3, Q("2 in")),
    Sketcher.Constraint("DistanceX", 1, 1, -1, 1, Q("39.128412 mm")),
    Sketcher.Constraint("DistanceX", -1, 1, 4, 1, Q("2.33776 mm")),
    Sketcher.Constraint("DistanceX", 5, 2, -1, 1, Q("44.75407 mm")),
    Sketcher.Constraint("DistanceY", 5, 2, -1, 1, Q("34.952959 mm")),
])
pad8 = body8.newObject("PartDesign::Pad", "Pad007")
pad8.Profile = sketch13
pad8.Length = Q("1 in")
body9 = doc.addObject("PartDesign::Body", "Body008")

sketch14 = body9.newObject("Sketcher::SketchObject", "Sketch013")
sketch14.AttachmentSupport = (doc.getObject("XZ_Plane008"), [""])
sketch14.MapMode = "FlatFace"
sketch14.addGeometry([
    Part.ArcOfCircle(Part.Circle(Vector(-42.106398, -47.373902, 0), Vector(0, 0, 1), 12.7), math.radians(180), math.radians(283.561391)),
    Part.ArcOfCircle(Part.Circle(Vector(-42.106398, -47.373902, 0), Vector(0, 0, 1), 12.7), math.radians(102.03318), math.radians(180)),
    Part.LineSegment(Vector(-44.75407, -34.952959, 0), Vector(-68.590063, -40.033885, 0)),
    Part.ArcOfCircle(Part.Circle(Vector(-92.906398, -47.373902, 0), Vector(0, 0, 1), 25.4), math.radians(0), math.radians(16.796725)),
    Part.ArcOfCircle(Part.Circle(Vector(-92.906398, -47.373902, 0), Vector(0, 0, 1), 25.4), math.radians(-62.128975), math.radians(0)),
    Part.LineSegment(Vector(-81.032334, -69.827557, 0), Vector(-39.128412, -59.719817, 0)),
], False)
sketch14.addConstraint([
    Sketcher.Constraint("Tangent", 0, 1, 1, 2),
    Sketcher.Constraint("Tangent", 1, 1, 2, 1),
    Sketcher.Constraint("Coincident", 2, 2, 3, 2),
    Sketcher.Constraint("Tangent", 3, 1, 4, 2),
    Sketcher.Constraint("Coincident", 4, 1, 5, 1),
    Sketcher.Constraint("Tangent", 5, 2, 0, 2),
    Sketcher.Constraint("Equal", 0, 1),
    Sketcher.Constraint("Equal", 3, 4),
    Sketcher.Constraint("Horizontal", 1, 3, 3, 3),
    Sketcher.Constraint("Horizontal", 4, 3, 0, 1),
    Sketcher.Constraint("Horizontal", 0, 1, 3, 1),
    Sketcher.Constraint("Radius", 3, Q("1 in")),
    Sketcher.Constraint("Radius", 0, Q("0.5 in")),
    Sketcher.Constraint("DistanceX", 3, 3, 0, 3, Q("2 in")),
    Sketcher.Constraint("DistanceX", 1, 1, -1, 1, Q("44.75407 mm")),
    Sketcher.Constraint("DistanceY", 1, 1, -1, 1, Q("34.952959 mm")),
    Sketcher.Constraint("DistanceX", 5, 2, -1, 1, Q("39.128412 mm")),
    Sketcher.Constraint("DistanceX", 1, 1, 0, 3, Q("2.647672 mm")),
])
pad9 = body9.newObject("PartDesign::Pad", "Pad008")
pad9.Profile = sketch14
pad9.Length = Q("1 in")

doc.recompute()
